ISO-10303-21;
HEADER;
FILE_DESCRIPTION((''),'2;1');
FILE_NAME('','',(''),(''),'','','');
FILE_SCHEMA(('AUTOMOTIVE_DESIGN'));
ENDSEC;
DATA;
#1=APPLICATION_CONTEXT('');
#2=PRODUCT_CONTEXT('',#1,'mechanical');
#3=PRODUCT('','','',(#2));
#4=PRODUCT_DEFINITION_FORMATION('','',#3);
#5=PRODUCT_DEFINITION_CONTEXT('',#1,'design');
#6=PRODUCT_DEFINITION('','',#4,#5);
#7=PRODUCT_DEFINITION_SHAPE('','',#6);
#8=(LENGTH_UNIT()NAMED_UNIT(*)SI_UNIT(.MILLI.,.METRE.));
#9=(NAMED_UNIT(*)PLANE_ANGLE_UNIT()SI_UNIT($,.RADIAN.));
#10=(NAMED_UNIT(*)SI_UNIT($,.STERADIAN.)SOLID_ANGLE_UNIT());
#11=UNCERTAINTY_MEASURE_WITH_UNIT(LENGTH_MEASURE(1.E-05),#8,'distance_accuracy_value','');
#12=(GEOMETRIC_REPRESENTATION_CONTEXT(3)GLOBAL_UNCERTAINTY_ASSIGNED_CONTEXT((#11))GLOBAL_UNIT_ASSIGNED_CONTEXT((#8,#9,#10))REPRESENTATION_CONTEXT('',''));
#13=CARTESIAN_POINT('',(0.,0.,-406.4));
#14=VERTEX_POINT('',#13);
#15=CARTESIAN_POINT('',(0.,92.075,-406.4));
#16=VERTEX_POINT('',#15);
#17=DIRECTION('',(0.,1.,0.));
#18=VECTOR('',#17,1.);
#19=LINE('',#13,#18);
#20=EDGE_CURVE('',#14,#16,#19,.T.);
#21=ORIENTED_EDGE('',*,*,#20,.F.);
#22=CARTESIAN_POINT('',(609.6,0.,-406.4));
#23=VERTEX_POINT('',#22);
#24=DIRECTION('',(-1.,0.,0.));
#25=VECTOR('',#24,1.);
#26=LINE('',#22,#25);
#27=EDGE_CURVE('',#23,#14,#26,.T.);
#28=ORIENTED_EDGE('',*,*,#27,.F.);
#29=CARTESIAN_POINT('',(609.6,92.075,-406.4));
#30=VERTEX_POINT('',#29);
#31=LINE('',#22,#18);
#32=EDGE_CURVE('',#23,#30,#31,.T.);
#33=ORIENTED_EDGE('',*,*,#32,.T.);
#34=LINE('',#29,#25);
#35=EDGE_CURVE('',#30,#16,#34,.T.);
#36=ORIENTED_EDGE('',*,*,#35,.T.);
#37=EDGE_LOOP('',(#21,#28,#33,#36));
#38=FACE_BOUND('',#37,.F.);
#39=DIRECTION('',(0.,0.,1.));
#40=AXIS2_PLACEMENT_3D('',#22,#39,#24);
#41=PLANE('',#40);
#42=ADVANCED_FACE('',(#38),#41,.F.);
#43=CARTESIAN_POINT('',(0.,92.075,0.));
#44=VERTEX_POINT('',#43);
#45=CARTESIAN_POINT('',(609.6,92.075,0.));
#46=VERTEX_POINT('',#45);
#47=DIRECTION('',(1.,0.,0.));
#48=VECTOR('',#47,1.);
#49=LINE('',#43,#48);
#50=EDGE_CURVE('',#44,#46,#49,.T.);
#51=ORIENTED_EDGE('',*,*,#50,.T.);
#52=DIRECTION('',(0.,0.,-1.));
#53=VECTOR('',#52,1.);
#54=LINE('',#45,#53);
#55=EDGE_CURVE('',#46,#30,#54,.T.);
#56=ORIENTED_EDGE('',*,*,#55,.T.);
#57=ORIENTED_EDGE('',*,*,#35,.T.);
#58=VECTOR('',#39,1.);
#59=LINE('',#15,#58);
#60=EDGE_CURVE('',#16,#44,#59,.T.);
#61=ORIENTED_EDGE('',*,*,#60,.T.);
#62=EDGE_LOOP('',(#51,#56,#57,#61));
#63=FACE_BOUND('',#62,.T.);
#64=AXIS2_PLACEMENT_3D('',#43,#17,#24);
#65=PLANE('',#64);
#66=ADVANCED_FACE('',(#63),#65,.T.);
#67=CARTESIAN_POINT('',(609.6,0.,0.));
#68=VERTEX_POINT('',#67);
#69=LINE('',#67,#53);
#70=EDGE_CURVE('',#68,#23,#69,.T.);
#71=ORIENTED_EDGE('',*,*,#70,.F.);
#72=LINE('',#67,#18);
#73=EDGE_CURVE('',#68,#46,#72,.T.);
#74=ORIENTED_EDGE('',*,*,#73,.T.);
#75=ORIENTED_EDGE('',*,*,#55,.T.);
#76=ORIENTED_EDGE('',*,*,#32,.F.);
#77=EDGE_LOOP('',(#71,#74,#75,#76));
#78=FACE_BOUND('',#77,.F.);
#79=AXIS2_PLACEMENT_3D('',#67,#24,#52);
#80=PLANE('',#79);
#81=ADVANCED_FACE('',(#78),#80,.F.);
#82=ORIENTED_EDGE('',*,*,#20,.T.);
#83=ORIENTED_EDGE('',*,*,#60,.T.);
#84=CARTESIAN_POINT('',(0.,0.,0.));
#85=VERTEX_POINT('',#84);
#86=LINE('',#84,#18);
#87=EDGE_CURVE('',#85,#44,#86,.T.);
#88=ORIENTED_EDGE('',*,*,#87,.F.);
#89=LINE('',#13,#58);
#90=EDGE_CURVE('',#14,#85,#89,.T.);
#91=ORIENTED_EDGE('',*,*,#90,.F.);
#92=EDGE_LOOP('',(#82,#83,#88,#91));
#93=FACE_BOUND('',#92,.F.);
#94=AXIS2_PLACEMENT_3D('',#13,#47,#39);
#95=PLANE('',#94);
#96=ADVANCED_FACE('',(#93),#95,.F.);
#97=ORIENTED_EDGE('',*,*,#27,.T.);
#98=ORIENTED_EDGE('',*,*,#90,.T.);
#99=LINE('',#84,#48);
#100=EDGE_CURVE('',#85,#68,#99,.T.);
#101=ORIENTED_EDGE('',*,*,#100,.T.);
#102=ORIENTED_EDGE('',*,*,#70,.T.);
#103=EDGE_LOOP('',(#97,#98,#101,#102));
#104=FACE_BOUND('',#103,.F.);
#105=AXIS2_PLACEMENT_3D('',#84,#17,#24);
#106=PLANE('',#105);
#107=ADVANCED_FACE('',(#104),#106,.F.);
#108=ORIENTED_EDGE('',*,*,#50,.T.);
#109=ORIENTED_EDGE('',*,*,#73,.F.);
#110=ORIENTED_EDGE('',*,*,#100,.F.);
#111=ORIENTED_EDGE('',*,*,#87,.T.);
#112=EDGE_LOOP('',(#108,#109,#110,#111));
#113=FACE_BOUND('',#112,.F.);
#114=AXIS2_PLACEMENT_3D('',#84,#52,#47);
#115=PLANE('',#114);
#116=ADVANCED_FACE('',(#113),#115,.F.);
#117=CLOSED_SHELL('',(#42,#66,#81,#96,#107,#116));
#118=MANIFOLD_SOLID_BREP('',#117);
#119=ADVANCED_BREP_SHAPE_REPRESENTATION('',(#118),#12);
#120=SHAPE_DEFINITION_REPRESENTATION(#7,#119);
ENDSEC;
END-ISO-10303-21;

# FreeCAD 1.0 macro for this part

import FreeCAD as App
import Part
import Sketcher

V = App.Vector
Q = App.Units.Quantity

doc = App.newDocument("Part")
body = doc.addObject("PartDesign::Body", "Body")

sketch1 = doc.addObject("Sketcher::SketchObject", "Sketch")
body.addObject(sketch1)
sketch1.AttachmentSupport = (doc.XZ_Plane, [""])
sketch1.MapMode = "FlatFace"
sketch1.addGeometry(Part.LineSegment(V(0, -406, 0), V(0, 0, 0)), False)
sketch1.addGeometry(Part.LineSegment(V(0, 0, 0), V(610, 0, 0)), False)
sketch1.addGeometry(Part.LineSegment(V(610, 0, 0), V(610, -406, 0)), False)
sketch1.addGeometry(Part.LineSegment(V(610, -406, 0), V(0, -406, 0)), False)
sketch1.addConstraint(Sketcher.Constraint("Coincident", 0, 2, 1, 1))
sketch1.addConstraint(Sketcher.Constraint("Coincident", 1, 2, 2, 1))
sketch1.addConstraint(Sketcher.Constraint("Coincident", 2, 2, 3, 1))
sketch1.addConstraint(Sketcher.Constraint("Coincident", 3, 2, 0, 1))
sketch1.addConstraint(Sketcher.Constraint("Vertical", 0))
sketch1.addConstraint(Sketcher.Constraint("Horizontal", 1))
sketch1.addConstraint(Sketcher.Constraint("Vertical", 2))
sketch1.addConstraint(Sketcher.Constraint("Horizontal", 3))
sketch1.addConstraint(Sketcher.Constraint("Coincident", 0, 2, -1, 1))
sketch1.addConstraint(Sketcher.Constraint("DistanceX", 1, 1, 1, 2, Q("24 in")))
sketch1.addConstraint(Sketcher.Constraint("DistanceY", 0, 1, 0, 2, Q("16 in")))
pad1 = doc.addObject("PartDesign::Pad", "Pad")
body.addObject(pad1)
pad1.Profile = sketch1
pad1.Length = Q("3.625 in")
pad1.Reversed = True

doc.recompute()
